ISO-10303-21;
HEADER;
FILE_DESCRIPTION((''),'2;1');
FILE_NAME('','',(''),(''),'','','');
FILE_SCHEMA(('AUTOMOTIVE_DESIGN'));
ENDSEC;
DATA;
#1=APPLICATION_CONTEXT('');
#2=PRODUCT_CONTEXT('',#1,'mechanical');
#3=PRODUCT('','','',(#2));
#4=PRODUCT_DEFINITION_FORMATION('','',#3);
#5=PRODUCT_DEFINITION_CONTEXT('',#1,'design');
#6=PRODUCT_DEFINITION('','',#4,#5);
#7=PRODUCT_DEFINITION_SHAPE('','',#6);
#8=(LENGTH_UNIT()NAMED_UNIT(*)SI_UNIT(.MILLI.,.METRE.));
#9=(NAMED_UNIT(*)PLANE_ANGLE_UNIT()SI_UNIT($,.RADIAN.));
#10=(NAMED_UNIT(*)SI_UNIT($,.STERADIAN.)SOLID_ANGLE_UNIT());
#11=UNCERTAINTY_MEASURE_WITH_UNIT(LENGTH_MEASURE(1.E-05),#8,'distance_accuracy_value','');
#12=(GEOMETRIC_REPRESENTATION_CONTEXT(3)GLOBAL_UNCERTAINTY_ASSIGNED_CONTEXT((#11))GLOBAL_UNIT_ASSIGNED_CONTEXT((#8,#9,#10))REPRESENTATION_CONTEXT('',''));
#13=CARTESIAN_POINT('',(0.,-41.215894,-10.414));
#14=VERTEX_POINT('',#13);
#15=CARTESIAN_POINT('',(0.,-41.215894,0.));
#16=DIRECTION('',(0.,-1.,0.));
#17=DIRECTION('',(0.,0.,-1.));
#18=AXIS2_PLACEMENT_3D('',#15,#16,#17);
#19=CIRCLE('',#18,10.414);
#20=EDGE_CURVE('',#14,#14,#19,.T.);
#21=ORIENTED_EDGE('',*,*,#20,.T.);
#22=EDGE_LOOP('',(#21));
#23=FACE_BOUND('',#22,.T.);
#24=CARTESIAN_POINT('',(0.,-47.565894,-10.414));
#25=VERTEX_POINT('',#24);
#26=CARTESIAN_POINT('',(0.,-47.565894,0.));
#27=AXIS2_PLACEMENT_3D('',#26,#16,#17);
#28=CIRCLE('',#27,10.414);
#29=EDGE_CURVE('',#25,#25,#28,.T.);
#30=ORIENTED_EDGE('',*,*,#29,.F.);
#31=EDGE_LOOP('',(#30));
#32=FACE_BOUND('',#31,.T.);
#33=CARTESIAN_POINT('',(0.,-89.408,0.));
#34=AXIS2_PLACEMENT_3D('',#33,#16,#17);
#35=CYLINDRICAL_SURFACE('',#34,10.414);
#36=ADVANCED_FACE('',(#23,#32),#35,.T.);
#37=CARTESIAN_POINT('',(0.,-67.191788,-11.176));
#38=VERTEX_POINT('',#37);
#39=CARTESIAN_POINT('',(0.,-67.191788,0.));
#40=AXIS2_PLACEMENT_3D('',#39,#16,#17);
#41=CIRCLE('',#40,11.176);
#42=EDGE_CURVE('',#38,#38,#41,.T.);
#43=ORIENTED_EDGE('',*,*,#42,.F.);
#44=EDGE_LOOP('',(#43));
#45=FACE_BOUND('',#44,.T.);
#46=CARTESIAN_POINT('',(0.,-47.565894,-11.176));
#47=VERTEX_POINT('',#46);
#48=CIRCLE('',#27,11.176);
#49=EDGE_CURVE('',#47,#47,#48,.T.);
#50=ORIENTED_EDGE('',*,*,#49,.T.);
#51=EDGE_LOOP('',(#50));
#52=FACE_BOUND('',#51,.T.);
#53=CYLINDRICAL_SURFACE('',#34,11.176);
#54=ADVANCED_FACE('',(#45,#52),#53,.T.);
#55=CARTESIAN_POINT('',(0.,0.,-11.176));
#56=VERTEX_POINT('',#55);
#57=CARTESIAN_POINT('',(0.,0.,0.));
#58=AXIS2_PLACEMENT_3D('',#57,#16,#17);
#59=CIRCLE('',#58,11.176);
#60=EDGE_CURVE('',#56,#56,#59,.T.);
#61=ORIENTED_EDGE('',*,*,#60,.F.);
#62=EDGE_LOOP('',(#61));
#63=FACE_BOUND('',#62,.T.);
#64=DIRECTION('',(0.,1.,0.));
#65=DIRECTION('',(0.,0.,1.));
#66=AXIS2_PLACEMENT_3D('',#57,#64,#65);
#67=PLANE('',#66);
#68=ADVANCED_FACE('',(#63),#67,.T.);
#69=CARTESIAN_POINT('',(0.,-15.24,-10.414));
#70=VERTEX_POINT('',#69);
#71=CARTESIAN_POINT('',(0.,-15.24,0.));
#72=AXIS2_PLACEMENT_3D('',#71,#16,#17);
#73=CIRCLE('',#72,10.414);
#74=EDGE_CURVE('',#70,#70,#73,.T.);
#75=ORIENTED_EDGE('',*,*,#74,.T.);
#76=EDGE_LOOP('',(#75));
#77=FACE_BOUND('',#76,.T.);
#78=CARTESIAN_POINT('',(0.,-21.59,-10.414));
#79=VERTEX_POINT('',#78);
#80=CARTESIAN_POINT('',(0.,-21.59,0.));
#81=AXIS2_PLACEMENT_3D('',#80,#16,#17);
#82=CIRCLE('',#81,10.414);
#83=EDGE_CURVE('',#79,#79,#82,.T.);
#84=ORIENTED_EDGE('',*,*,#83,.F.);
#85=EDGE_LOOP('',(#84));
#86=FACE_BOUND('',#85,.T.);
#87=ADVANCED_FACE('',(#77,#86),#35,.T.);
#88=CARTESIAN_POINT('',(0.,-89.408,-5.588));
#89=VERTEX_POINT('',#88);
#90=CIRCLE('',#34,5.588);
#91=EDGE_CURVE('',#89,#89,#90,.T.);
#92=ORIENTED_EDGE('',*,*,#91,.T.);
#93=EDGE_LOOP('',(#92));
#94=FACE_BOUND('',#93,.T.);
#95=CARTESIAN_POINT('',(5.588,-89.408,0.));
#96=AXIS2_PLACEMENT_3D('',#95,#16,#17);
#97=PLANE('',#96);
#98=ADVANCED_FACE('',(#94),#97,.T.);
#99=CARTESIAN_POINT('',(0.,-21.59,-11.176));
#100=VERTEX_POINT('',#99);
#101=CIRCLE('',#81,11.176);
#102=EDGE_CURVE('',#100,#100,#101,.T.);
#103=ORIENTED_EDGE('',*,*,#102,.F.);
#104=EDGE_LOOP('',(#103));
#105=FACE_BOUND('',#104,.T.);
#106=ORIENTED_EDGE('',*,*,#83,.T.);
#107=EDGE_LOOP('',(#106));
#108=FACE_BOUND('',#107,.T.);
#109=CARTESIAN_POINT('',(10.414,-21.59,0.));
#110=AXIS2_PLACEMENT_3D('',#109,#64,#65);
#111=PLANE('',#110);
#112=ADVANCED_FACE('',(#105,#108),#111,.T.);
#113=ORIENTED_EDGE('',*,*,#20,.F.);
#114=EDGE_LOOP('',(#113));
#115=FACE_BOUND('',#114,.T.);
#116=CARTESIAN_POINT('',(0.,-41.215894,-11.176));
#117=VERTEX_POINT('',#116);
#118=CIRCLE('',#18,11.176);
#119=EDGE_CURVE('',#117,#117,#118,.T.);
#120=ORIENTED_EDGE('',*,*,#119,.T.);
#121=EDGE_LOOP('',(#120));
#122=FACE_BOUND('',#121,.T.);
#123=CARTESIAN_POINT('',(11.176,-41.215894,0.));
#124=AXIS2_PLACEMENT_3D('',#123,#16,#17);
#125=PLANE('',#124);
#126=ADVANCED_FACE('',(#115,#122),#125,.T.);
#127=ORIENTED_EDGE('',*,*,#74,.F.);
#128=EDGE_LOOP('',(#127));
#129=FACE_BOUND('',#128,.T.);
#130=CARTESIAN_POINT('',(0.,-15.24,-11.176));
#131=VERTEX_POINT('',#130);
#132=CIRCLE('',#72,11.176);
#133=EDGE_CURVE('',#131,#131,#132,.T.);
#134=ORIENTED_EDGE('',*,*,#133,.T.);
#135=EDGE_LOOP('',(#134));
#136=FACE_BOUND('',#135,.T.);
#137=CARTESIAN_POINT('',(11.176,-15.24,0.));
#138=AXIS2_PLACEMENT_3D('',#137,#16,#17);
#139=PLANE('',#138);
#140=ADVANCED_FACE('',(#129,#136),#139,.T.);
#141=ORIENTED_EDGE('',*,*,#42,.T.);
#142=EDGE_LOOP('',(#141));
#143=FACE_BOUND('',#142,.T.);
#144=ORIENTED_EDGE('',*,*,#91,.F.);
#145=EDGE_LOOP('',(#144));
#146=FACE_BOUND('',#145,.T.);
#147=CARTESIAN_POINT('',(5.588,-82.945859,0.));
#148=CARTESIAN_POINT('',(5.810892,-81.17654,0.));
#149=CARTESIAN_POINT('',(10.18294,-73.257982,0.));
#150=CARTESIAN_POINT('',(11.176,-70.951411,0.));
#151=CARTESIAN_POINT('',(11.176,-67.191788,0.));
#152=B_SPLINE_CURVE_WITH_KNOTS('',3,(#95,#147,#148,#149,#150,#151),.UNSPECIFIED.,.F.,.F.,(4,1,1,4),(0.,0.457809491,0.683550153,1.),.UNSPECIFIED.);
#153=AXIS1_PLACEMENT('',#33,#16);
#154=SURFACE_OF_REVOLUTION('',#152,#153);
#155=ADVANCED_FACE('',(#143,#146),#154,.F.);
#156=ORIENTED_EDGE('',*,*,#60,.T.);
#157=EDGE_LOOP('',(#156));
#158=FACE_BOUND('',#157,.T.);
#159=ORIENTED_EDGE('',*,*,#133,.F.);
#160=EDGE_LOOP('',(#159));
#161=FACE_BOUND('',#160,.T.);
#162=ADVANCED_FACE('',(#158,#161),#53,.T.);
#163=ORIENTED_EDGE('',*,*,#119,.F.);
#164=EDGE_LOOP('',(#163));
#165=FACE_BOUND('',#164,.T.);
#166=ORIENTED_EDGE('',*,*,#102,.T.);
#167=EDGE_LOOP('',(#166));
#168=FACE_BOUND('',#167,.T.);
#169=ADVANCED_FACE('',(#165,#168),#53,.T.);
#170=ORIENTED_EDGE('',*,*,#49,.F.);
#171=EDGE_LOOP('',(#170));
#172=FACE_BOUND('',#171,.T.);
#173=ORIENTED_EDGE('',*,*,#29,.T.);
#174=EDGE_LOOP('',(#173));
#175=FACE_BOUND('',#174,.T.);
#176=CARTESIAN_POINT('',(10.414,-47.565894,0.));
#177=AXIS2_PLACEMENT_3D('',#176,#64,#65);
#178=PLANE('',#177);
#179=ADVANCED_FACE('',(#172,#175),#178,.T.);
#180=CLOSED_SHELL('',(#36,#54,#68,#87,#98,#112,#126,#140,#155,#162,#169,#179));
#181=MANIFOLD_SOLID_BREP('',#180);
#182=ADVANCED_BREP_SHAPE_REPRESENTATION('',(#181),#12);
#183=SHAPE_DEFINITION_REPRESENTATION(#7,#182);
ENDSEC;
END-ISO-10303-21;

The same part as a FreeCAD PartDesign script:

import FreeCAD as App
import Part
import Sketcher
Q = App.Units.Quantity

doc = App.newDocument("Part")
body = doc.addObject("PartDesign::Body", "Body")

# Sketch on XY plane
sketch1 = body.newObject("Sketcher::SketchObject", "Sketch")
sketch1.AttachmentSupport = (doc.getObject("XY_Plane"), [""])
sketch1.MapMode = "FlatFace"
sketch1.addGeometry([
    Part.LineSegment(App.Vector(11.176, 0, 0), App.Vector(0, 0, 0)),  # 0
    Part.LineSegment(App.Vector(0, 0, 0), App.Vector(0, -89.408, 0)),  # 1
    Part.LineSegment(App.Vector(0, -89.408, 0), App.Vector(5.588, -89.408, 0)),  # 2
    Part.BSplineCurve([App.Vector(11.176, -67.191788, 0), App.Vector(11.176, -70.951411, 0), App.Vector(10.18294, -73.257982, 0), App.Vector(5.810892, -81.17654, 0), App.Vector(5.588, -82.945859, 0), App.Vector(5.588, -89.408, 0)], [4, 1, 1, 4], [0, 0.316449847, 0.542190509, 1], False, 3, [1, 1, 1, 1, 1, 1], False),  # 3
    Part.LineSegment(App.Vector(11.176, -67.191788, 0), App.Vector(11.176, -47.565894, 0)),  # 4
    Part.LineSegment(App.Vector(11.176, -47.565894, 0), App.Vector(10.414, -47.565894, 0)),  # 5
    Part.LineSegment(App.Vector(10.414, -47.565894, 0), App.Vector(10.414, -41.215894, 0)),  # 6
    Part.LineSegment(App.Vector(10.414, -41.215894, 0), App.Vector(11.176, -41.215894, 0)),  # 7
    Part.LineSegment(App.Vector(11.176, -41.215894, 0), App.Vector(11.176, -21.59, 0)),  # 8
    Part.LineSegment(App.Vector(11.176, -21.59, 0), App.Vector(10.414, -21.59, 0)),  # 9
    Part.LineSegment(App.Vector(10.414, -21.59, 0), App.Vector(10.414, -15.24, 0)),  # 10
    Part.LineSegment(App.Vector(10.414, -15.24, 0), App.Vector(11.176, -15.24, 0)),  # 11
    Part.LineSegment(App.Vector(11.176, -15.24, 0), App.Vector(11.176, 0, 0)),  # 12
], False)
sketch1.addConstraint([
    Sketcher.Constraint("Block", 3),
    Sketcher.Constraint("Coincident", 0, 2, 1, 1),
    Sketcher.Constraint("Coincident", 1, 2, 2, 1),
    Sketcher.Constraint("Coincident", 2, 2, 3, 2),
    Sketcher.Constraint("Coincident", 3, 1, 4, 1),
    Sketcher.Constraint("Coincident", 4, 2, 5, 1),
    Sketcher.Constraint("Coincident", 5, 2, 6, 1),
    Sketcher.Constraint("Coincident", 6, 2, 7, 1),
    Sketcher.Constraint("Coincident", 7, 2, 8, 1),
    Sketcher.Constraint("Coincident", 8, 2, 9, 1),
    Sketcher.Constraint("Coincident", 9, 2, 10, 1),
    Sketcher.Constraint("Coincident", 10, 2, 11, 1),
    Sketcher.Constraint("Coincident", 11, 2, 12, 1),
    Sketcher.Constraint("Coincident", 12, 2, 0, 1),
    Sketcher.Constraint("Horizontal", 0),
    Sketcher.Constraint("Vertical", 1),
    Sketcher.Constraint("Horizontal", 2),
    Sketcher.Constraint("Vertical", 4),
    Sketcher.Constraint("Horizontal", 5),
    Sketcher.Constraint("Vertical", 6),
    Sketcher.Constraint("Horizontal", 7),
    Sketcher.Constraint("Vertical", 8),
    Sketcher.Constraint("Horizontal", 9),
    Sketcher.Constraint("Vertical", 10),
    Sketcher.Constraint("Horizontal", 11),
    Sketcher.Constraint("Vertical", 12),
    Sketcher.Constraint("Coincident", 0, 2, -1, 1),
    Sketcher.Constraint("Vertical", 4, 2, 7, 2),
    Sketcher.Constraint("Vertical", 6, 2, 9, 2),
    Sketcher.Constraint("Vertical", 8, 2, 11, 2),
    Sketcher.Constraint("Equal", 4, 8),
    Sketcher.Constraint("Equal", 6, 10),
    Sketcher.Constraint("DistanceY", 12, 1, 12, 2, Q("0.6 in")),
    Sketcher.Constraint("DistanceX", 5, 2, 5, 1, Q("0.03 in")),
    Sketcher.Constraint("DistanceY", 6, 1, 6, 2, Q("0.25 in")),
])
revolution = body.newObject("PartDesign::Revolution", "Revolution")
revolution.Profile = sketch1
revolution.ReferenceAxis = (sketch1, ["V_Axis"])
revolution.Angle = 360

doc.recompute()
